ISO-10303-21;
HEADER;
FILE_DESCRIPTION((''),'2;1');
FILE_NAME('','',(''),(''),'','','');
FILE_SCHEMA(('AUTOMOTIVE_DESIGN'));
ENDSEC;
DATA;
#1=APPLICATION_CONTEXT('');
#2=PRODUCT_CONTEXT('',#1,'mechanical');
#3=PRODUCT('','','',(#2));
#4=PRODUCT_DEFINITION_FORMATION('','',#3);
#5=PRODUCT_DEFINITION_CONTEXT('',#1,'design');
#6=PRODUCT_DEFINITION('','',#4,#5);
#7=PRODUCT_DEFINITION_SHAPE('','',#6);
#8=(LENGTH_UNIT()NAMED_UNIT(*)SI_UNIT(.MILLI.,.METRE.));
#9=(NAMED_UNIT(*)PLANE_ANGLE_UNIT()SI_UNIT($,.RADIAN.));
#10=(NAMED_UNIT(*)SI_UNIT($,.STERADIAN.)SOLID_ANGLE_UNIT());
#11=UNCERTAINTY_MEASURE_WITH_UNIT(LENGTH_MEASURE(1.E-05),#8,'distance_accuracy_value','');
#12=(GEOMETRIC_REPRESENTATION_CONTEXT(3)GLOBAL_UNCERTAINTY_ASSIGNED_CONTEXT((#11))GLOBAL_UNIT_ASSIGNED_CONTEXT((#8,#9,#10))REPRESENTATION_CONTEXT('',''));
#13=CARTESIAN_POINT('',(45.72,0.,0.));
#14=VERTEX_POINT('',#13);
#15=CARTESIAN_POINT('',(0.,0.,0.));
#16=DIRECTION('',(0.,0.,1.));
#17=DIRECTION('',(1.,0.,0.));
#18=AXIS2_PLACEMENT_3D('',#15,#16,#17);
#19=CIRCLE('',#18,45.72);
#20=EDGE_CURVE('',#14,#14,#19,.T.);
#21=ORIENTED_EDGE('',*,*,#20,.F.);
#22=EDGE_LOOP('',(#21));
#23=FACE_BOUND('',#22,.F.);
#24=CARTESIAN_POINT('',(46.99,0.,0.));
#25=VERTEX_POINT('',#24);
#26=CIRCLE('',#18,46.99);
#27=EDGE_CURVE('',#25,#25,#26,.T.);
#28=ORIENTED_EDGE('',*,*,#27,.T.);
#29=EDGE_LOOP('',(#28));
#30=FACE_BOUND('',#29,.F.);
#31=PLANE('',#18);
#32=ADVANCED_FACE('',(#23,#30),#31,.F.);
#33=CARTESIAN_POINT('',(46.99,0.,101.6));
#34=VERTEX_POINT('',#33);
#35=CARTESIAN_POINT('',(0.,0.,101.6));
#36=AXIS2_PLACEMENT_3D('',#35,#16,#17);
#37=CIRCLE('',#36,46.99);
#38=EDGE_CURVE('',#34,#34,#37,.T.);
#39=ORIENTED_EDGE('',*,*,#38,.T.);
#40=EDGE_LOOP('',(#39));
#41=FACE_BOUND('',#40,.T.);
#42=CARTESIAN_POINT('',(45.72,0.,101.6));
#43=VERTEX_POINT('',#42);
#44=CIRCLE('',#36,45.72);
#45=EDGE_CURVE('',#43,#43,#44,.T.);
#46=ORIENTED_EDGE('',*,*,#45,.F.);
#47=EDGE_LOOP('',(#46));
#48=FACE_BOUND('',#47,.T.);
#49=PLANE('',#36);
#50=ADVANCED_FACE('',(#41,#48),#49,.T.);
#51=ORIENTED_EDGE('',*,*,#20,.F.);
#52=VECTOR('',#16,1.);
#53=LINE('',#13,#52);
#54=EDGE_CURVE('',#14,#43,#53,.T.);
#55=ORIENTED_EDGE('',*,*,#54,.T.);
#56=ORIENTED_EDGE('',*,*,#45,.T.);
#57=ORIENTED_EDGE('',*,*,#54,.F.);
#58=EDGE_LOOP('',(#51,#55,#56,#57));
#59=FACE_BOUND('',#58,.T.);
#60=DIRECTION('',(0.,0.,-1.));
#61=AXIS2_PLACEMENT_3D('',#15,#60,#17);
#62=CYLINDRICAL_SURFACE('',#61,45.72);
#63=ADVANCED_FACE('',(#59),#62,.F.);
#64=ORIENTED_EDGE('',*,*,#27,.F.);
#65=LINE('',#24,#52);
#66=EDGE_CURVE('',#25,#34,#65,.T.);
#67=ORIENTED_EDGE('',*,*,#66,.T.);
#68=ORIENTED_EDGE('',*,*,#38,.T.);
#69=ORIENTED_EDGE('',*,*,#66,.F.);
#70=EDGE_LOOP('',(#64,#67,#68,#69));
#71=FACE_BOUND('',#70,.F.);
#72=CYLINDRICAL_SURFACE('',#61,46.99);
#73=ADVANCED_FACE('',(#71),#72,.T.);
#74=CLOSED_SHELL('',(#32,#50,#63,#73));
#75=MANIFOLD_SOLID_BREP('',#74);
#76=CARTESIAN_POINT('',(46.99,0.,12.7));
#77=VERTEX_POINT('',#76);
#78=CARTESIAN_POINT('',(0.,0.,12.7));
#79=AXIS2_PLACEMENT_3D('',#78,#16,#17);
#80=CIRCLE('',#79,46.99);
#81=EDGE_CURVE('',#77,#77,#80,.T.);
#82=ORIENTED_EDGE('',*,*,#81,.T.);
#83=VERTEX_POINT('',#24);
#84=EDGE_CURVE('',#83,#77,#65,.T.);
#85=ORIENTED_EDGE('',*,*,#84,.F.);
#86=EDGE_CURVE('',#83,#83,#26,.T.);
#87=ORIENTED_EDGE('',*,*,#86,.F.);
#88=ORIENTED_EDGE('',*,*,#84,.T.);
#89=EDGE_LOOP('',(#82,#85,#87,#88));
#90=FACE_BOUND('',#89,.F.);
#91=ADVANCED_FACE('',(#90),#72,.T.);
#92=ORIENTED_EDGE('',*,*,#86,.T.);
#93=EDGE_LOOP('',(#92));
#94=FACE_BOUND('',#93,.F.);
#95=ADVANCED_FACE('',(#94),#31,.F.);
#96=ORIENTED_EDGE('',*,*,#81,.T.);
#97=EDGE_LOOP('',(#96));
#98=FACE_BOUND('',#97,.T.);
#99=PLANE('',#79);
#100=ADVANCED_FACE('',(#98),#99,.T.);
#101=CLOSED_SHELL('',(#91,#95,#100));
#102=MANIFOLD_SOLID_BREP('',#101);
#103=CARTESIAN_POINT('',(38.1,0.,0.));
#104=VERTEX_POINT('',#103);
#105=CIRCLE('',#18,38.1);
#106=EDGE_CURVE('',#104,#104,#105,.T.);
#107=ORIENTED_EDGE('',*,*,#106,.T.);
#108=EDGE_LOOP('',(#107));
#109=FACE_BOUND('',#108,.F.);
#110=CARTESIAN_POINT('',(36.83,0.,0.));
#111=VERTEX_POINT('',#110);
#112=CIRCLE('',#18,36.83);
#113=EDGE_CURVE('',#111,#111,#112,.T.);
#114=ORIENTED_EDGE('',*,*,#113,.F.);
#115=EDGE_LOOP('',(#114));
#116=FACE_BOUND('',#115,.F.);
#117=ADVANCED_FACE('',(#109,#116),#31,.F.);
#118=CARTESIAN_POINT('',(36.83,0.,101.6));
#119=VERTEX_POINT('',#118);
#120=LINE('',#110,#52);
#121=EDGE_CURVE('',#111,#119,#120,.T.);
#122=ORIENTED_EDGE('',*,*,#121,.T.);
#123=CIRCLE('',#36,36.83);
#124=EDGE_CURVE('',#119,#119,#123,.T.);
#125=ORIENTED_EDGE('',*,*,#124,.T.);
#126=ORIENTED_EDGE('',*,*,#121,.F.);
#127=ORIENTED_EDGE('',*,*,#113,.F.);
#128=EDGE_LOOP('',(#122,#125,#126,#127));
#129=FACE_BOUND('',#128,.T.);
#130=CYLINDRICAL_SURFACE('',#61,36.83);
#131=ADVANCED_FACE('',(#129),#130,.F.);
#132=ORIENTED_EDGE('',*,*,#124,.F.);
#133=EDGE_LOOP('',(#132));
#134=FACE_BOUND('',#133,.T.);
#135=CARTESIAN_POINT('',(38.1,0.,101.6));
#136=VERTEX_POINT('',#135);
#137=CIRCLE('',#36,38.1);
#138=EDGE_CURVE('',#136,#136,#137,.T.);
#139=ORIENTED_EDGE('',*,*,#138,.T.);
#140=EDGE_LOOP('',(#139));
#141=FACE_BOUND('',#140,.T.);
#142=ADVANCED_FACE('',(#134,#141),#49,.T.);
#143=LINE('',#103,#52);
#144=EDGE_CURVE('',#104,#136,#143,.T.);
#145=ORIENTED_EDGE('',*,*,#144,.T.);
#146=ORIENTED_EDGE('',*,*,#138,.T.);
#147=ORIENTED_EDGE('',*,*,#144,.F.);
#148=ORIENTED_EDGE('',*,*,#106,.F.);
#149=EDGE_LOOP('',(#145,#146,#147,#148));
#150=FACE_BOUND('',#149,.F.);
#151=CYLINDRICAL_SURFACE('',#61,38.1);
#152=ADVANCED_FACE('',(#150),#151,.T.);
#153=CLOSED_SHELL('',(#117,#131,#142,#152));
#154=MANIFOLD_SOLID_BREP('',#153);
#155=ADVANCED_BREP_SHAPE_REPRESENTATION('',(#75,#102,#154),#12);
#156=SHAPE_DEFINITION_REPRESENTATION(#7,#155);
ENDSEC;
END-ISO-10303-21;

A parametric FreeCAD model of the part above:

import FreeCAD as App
import Part
import Sketcher
Q = App.Units.Quantity

doc = App.newDocument("Part")
body = doc.addObject("PartDesign::Body", "Body")

# Sketch on XY plane
sketch1 = body.newObject("Sketcher::SketchObject", "Sketch")
sketch1.AttachmentSupport = (doc.getObject("XY_Plane"), [""])
sketch1.MapMode = "FlatFace"
sketch1.addGeometry(Part.Circle(App.Vector(0, 0, 0), App.Vector(0, 0, 1), 47), False)
sketch1.addGeometry(Part.Circle(App.Vector(0, 0, 0), App.Vector(0, 0, 1), 46), False)
sketch1.addConstraint(Sketcher.Constraint("Coincident", 0, 3, -1, 1))
sketch1.addConstraint(Sketcher.Constraint("Coincident", 1, 3, -1, 1))
sketch1.addConstraint(Sketcher.Constraint("Diameter", 0, Q("3.7 in")))
sketch1.addConstraint(Sketcher.Constraint("Diameter", 1, Q("3.6 in")))
pad1 = body.newObject("PartDesign::Pad", "Pad")
pad1.Profile = sketch1
pad1.Length = Q("4 in")
body2 = doc.addObject("PartDesign::Body", "Body001")

# Sketch on XY plane
sketch2 = body2.newObject("Sketcher::SketchObject", "Sketch001")
sketch2.AttachmentSupport = (doc.getObject("XY_Plane001"), [""])
sketch2.MapMode = "FlatFace"
sketch2.addGeometry(Part.Circle(App.Vector(0, 0, 0), App.Vector(0, 0, 1), 38), False)
sketch2.addGeometry(Part.Circle(App.Vector(0, 0, 0), App.Vector(0, 0, 1), 37), False)
sketch2.addConstraint(Sketcher.Constraint("Coincident", 0, 3, -1, 1))
sketch2.addConstraint(Sketcher.Constraint("Coincident", 1, 3, -1, 1))
sketch2.addConstraint(Sketcher.Constraint("Diameter", 0, Q("3 in")))
sketch2.addConstraint(Sketcher.Constraint("Diameter", 1, Q("2.9 in")))
pad2 = body2.newObject("PartDesign::Pad", "Pad001")
pad2.Profile = sketch2
pad2.Length = Q("4 in")
body3 = doc.addObject("PartDesign::Body", "Body002")

# Sketch on XY plane
sketch3 = body3.newObject("Sketcher::SketchObject", "Sketch002")
sketch3.AttachmentSupport = (doc.getObject("XY_Plane002"), [""])
sketch3.MapMode = "FlatFace"
sketch3.addGeometry(Part.Circle(App.Vector(0, 0, 0), App.Vector(0, 0, 1), 47), False)
sketch3.addConstraint(Sketcher.Constraint("Coincident", 0, 3, -1, 1))
sketch3.addConstraint(Sketcher.Constraint("Diameter", 0, Q("3.7 in")))
pad3 = body3.newObject("PartDesign::Pad", "Pad002")
pad3.Profile = sketch3
pad3.Length = Q("0.5 in")

doc.recompute()
